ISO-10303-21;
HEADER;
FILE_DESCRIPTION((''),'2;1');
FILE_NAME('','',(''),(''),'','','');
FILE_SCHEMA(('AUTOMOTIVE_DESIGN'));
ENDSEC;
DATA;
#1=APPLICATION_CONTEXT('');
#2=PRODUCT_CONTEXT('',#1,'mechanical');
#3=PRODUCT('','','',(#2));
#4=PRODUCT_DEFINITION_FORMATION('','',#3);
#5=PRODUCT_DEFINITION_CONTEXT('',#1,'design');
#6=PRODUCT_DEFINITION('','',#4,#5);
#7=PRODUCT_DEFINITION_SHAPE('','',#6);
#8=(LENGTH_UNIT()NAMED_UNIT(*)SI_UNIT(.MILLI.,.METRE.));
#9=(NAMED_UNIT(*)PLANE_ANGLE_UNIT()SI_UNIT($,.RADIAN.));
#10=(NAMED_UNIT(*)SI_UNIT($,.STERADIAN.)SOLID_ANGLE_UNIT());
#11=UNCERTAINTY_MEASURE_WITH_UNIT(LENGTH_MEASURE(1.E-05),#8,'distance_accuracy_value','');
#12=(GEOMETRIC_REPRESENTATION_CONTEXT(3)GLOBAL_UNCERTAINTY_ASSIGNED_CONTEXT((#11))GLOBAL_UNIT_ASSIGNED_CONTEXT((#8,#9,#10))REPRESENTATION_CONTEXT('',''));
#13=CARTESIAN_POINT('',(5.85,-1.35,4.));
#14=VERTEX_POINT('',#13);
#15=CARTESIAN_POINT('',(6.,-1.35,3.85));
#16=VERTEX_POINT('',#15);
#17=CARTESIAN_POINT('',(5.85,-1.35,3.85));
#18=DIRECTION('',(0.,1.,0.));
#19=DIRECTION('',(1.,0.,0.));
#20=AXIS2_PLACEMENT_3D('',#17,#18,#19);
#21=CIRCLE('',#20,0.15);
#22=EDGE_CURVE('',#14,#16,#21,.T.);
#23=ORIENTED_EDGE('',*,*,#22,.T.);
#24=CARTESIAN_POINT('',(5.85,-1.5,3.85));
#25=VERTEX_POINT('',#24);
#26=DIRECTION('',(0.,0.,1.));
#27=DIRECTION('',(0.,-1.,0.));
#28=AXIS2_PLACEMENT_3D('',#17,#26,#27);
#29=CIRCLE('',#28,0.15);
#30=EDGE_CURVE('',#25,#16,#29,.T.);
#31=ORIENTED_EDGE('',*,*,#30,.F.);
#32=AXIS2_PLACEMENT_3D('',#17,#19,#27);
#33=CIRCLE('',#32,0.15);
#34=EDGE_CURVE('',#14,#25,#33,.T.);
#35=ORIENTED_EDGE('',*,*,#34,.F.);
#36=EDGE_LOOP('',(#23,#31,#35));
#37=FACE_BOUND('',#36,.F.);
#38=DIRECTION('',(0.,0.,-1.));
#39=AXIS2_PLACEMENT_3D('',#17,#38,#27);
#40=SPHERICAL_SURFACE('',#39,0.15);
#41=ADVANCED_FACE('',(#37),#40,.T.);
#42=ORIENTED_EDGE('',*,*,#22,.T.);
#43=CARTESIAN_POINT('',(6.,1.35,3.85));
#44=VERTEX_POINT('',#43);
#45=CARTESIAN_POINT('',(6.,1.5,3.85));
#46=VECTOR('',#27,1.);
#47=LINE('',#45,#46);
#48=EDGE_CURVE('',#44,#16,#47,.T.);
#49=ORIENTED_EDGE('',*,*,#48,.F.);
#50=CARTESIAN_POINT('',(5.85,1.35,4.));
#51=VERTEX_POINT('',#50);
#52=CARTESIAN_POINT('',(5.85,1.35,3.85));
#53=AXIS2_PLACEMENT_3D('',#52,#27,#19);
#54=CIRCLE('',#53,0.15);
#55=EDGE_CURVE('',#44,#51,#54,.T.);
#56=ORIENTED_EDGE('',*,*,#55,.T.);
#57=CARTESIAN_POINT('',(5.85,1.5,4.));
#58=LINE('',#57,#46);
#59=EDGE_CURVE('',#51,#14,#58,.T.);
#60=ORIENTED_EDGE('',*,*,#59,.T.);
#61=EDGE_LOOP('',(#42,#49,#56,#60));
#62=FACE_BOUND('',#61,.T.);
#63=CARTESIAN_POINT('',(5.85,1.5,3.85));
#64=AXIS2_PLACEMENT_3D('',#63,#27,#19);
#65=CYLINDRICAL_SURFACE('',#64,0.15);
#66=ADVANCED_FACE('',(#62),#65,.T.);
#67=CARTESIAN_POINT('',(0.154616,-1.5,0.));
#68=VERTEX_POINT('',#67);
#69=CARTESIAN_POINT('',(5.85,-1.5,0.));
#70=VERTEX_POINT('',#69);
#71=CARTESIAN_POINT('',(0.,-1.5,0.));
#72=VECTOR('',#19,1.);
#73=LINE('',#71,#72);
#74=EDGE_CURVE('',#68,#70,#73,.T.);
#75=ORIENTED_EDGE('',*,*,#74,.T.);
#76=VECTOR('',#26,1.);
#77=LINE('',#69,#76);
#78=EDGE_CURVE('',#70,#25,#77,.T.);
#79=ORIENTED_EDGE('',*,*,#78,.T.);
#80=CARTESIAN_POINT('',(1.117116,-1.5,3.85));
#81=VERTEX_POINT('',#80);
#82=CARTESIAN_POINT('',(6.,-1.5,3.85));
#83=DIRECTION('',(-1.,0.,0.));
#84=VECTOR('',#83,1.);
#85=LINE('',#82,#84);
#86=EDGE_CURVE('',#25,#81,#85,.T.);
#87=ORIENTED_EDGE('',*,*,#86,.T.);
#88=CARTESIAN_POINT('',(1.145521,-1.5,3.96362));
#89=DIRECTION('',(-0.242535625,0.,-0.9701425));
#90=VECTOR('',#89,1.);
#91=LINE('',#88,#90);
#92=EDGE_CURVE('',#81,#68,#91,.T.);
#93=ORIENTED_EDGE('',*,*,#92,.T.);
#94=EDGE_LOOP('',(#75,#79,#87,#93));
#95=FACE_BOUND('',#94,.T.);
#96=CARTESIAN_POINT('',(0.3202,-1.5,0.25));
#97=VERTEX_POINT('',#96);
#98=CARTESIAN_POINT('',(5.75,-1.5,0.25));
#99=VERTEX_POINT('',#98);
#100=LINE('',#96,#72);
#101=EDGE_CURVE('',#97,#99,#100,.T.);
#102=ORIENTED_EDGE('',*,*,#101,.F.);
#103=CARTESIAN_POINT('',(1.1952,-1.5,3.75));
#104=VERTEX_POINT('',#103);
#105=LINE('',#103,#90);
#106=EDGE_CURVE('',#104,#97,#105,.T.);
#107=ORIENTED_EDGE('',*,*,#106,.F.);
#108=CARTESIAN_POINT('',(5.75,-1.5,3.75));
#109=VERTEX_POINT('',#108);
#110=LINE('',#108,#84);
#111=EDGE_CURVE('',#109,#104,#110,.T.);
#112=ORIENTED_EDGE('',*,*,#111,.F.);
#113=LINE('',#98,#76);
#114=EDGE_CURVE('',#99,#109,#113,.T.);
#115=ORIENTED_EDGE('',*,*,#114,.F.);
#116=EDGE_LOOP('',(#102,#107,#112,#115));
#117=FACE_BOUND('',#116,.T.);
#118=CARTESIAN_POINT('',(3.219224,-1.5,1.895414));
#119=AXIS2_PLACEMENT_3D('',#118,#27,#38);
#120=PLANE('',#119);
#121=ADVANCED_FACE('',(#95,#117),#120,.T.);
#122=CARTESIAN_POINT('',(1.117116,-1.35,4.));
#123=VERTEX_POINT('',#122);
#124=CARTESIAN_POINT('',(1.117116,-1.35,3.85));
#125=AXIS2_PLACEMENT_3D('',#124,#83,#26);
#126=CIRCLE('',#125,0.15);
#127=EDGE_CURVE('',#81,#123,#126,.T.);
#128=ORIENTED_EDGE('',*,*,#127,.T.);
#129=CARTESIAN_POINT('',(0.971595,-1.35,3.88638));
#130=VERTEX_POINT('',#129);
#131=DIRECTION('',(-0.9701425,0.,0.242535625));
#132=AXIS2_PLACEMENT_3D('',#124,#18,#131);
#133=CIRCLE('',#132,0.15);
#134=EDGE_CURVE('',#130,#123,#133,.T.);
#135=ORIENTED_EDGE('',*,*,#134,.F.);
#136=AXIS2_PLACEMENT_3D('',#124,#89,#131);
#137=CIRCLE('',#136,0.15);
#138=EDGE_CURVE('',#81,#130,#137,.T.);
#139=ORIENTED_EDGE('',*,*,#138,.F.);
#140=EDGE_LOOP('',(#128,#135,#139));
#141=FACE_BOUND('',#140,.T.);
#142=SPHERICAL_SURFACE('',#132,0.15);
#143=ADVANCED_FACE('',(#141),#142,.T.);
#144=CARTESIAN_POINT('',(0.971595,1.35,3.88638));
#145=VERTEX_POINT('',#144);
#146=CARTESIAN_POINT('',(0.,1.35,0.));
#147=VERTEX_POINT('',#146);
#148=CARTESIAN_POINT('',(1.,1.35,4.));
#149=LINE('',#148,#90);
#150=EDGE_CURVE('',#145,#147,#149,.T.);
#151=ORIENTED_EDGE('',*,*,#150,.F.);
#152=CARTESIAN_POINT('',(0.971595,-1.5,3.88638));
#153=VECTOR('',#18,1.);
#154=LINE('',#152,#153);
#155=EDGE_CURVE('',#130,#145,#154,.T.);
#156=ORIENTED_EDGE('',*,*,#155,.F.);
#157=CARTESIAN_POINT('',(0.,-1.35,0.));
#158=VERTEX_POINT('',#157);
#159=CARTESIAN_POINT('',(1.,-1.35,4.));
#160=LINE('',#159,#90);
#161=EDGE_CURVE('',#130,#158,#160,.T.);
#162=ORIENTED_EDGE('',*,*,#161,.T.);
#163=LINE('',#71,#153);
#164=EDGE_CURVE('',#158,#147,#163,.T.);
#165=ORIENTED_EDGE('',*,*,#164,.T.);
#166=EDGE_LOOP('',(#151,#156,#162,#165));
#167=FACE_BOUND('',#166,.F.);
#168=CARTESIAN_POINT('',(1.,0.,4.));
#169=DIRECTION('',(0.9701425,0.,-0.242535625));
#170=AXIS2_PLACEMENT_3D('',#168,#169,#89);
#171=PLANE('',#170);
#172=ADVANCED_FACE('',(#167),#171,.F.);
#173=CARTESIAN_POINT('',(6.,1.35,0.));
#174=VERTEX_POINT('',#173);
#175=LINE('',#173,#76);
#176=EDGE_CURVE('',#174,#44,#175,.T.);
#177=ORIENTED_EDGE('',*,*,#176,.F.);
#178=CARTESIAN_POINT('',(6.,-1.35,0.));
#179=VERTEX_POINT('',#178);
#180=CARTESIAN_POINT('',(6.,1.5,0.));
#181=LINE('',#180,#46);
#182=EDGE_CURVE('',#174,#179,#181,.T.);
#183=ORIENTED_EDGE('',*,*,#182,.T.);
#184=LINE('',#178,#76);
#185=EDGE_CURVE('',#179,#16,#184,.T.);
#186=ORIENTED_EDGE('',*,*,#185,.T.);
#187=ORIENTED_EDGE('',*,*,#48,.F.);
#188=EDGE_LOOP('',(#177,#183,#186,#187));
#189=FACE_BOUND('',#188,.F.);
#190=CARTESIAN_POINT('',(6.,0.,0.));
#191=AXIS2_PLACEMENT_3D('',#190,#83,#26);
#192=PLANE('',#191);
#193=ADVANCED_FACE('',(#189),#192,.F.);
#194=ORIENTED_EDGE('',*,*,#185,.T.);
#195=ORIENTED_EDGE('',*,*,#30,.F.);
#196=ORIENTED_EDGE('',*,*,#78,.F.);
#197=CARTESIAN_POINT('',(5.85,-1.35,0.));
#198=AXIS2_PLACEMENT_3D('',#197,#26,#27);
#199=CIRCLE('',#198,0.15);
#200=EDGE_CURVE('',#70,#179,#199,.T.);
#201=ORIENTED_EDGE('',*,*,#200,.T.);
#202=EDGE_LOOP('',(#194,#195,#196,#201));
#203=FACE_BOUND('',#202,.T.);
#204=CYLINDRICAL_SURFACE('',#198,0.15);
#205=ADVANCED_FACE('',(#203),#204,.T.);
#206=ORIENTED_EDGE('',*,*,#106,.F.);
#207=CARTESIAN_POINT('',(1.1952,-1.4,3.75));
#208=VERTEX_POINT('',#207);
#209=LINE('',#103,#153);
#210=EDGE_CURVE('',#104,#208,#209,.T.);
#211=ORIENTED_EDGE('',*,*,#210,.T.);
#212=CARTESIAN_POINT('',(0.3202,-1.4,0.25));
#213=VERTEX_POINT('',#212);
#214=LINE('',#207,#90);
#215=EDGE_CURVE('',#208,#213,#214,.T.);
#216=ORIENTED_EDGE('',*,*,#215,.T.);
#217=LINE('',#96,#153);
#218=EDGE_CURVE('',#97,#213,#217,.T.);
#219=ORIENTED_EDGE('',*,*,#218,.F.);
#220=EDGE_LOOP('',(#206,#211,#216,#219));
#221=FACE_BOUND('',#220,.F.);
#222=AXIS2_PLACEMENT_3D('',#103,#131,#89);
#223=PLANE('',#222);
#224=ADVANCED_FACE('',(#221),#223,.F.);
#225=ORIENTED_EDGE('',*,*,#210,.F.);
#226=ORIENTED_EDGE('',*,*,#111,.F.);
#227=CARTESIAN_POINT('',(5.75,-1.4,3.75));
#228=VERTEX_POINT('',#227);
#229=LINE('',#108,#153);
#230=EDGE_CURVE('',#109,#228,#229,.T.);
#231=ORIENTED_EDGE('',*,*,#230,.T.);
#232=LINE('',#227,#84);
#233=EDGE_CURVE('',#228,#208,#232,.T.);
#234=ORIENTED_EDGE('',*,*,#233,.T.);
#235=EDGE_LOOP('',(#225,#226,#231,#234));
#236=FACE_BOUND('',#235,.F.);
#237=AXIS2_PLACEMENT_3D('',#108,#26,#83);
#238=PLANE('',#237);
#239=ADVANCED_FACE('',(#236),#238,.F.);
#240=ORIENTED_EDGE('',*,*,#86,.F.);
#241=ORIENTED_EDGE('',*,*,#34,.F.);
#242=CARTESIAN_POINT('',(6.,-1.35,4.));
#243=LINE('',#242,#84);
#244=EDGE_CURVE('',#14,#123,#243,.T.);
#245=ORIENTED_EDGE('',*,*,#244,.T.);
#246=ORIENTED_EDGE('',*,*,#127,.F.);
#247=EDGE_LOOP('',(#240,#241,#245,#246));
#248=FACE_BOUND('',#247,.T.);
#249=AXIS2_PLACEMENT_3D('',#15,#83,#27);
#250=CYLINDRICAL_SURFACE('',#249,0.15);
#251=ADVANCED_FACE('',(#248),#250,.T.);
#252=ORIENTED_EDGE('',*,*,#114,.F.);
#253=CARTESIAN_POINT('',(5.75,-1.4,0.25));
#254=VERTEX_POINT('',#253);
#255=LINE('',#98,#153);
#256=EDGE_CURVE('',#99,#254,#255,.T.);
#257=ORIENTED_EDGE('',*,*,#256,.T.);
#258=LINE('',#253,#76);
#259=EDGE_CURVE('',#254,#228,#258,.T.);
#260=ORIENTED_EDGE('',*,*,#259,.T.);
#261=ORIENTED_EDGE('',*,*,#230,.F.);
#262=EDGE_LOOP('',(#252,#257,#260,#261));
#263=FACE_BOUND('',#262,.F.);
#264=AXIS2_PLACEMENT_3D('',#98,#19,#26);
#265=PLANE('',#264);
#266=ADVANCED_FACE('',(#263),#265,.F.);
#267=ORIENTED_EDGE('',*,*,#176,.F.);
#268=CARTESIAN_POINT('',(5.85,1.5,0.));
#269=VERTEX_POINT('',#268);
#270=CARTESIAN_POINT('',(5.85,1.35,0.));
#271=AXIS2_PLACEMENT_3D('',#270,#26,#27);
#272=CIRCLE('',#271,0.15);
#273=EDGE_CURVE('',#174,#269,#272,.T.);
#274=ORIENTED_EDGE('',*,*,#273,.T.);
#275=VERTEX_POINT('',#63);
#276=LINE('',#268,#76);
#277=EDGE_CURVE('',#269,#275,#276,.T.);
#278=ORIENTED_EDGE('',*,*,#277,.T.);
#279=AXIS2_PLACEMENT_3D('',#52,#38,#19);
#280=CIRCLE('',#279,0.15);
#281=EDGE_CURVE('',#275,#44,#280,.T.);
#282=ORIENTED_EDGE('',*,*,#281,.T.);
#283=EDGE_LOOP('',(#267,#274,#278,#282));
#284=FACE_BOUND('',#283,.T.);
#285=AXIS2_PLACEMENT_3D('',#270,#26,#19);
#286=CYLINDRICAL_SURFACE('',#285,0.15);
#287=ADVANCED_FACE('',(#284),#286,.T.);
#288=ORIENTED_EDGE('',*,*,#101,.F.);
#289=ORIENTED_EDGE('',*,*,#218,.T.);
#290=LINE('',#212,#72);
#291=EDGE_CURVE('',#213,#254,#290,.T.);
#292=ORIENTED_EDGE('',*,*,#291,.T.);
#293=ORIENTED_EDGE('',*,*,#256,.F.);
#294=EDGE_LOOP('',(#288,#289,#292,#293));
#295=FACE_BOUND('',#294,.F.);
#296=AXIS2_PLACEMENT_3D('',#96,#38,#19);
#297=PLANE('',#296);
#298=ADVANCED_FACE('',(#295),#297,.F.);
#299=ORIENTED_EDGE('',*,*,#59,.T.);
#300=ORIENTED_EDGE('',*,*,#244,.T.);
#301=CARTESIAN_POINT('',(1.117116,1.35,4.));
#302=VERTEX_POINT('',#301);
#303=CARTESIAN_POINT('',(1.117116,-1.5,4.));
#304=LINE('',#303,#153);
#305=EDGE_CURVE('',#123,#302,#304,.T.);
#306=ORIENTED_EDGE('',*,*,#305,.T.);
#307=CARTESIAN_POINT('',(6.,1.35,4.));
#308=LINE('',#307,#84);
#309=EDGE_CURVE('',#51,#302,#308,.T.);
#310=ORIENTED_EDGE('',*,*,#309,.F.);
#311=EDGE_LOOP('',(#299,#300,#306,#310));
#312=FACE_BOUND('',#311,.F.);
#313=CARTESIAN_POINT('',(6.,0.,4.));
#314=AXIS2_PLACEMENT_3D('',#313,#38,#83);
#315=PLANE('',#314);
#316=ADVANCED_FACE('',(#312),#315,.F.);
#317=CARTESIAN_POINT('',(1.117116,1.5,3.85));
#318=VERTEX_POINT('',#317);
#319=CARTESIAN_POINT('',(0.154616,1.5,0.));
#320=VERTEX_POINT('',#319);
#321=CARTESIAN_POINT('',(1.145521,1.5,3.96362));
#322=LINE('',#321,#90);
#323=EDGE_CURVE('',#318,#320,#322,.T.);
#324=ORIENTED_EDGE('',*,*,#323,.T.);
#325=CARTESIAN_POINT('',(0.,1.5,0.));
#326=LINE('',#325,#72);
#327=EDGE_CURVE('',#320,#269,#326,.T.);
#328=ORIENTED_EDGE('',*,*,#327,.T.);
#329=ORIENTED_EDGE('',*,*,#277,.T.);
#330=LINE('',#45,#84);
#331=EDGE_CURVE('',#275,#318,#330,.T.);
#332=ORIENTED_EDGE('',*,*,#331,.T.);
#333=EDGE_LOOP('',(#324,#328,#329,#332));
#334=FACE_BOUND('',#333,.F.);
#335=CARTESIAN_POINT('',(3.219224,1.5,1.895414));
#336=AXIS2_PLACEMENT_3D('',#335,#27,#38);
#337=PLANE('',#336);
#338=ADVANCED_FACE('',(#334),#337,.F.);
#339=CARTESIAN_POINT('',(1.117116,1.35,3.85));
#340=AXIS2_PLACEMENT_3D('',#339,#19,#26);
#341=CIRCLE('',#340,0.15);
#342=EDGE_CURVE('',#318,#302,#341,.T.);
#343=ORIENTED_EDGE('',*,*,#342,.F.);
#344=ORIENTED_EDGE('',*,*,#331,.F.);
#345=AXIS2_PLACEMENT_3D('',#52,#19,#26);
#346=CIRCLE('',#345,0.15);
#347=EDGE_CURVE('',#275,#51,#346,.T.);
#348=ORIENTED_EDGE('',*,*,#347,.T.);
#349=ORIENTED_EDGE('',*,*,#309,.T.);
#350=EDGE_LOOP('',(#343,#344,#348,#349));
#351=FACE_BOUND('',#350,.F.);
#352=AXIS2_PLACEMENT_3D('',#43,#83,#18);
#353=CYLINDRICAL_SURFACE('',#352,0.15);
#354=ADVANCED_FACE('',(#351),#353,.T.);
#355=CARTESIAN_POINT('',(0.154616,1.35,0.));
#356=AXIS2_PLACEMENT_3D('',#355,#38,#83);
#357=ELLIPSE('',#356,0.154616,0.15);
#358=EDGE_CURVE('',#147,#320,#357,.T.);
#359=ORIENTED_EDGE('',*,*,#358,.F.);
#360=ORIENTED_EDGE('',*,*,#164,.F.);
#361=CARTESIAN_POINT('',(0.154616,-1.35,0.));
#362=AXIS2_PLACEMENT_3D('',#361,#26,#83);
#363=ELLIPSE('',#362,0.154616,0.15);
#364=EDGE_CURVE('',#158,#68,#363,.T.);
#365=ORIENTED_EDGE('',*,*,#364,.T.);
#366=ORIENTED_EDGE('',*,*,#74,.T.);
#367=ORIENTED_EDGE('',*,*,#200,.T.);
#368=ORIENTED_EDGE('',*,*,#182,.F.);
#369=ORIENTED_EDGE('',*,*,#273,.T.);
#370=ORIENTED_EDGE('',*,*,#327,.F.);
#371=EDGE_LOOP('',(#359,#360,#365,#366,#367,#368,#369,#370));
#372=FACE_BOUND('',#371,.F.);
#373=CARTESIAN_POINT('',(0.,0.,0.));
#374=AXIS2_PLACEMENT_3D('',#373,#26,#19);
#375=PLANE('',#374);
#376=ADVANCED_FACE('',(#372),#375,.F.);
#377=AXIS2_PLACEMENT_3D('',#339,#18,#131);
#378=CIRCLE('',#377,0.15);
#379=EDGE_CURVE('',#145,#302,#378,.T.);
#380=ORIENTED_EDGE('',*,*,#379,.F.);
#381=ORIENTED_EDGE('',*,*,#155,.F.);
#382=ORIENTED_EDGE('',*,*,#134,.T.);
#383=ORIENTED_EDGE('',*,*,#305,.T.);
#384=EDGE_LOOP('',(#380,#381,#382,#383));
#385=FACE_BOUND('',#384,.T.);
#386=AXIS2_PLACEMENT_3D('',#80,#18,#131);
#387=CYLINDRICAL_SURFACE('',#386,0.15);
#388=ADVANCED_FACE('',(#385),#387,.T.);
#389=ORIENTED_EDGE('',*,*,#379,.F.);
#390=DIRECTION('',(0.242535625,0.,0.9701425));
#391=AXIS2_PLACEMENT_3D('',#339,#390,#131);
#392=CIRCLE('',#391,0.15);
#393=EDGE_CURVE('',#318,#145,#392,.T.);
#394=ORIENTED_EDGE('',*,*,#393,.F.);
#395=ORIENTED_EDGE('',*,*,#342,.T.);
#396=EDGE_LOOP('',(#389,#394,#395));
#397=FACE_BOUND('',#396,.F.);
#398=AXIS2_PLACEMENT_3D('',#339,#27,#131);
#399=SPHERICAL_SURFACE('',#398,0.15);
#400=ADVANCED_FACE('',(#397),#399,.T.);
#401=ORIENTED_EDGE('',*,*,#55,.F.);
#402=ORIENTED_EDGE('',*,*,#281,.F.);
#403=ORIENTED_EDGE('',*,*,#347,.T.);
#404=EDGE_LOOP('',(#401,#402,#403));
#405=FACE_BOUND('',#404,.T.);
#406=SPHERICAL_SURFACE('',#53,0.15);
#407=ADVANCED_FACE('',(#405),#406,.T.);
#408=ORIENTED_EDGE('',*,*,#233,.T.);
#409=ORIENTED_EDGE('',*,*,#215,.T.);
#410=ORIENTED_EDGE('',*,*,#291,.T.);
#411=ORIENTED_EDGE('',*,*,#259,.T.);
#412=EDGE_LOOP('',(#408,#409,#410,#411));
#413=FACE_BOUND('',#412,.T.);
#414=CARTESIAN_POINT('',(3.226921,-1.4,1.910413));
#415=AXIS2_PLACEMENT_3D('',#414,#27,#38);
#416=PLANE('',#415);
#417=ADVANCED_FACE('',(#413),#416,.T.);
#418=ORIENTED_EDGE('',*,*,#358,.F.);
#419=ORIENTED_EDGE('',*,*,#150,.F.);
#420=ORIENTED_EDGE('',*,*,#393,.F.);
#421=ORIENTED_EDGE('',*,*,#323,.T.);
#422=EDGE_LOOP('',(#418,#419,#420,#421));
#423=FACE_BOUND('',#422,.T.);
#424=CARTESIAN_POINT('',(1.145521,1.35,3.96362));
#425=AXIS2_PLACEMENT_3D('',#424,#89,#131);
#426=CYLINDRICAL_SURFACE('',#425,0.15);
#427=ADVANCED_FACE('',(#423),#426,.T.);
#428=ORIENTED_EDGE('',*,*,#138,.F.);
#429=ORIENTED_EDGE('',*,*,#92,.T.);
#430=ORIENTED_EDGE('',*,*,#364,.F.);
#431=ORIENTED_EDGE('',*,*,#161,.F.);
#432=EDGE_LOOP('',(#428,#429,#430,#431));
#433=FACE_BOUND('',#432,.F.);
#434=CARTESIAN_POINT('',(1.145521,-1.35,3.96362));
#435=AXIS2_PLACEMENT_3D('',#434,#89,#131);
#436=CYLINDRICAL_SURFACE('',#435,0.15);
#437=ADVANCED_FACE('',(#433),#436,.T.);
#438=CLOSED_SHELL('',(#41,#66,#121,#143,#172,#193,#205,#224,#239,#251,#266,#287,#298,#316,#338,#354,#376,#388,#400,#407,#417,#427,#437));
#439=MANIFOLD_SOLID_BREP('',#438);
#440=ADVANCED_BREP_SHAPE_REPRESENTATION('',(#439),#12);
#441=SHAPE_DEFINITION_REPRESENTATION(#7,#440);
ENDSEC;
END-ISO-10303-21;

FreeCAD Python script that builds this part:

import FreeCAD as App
import Part
import Sketcher


def edges_at(feature, points):
    """Names of the edges that pass closest to the given points."""
    edges = feature.Shape.Edges
    near = lambda p: min(range(len(edges)), key=lambda i: edges[i].distToShape(Part.Vertex(*p))[0])
    return sorted({f"Edge{near(p) + 1}" for p in points})


def add_polygon(sketch, points):
    """Adds a closed chain of lines whose ends are joined by coincident constraints."""
    first, n = sketch.GeometryCount, len(points)
    for a, b in zip(points, points[1:] + points[:1]):
        sketch.addGeometry(Part.LineSegment(App.Vector(*a, 0), App.Vector(*b, 0)), False)
    for i in range(n):
        sketch.addConstraint(Sketcher.Constraint("Coincident", first + i, 2, first + (i + 1) % n, 1))

doc = App.newDocument("Part")
body = doc.addObject("PartDesign::Body", "Body")

# Sketch on XZ plane
sketch1 = body.newObject("Sketcher::SketchObject", "Sketch")
sketch1.AttachmentSupport = (doc.getObject("XZ_Plane"), [""])
sketch1.MapMode = "FlatFace"
add_polygon(sketch1, [(1, 4), (0, 0), (6, 0), (6, 4)])  # lines 0-3
sketch1.addConstraint([
    Sketcher.Constraint("Horizontal", 1),
    Sketcher.Constraint("Vertical", 2),
    Sketcher.Constraint("Horizontal", 3),
    Sketcher.Constraint("Coincident", 0, 2, -1, 1),
    Sketcher.Constraint("DistanceX", 1, 1, 1, 2, 6.0),
    Sketcher.Constraint("DistanceX", 3, 2, 3, 1, 5.0),
    Sketcher.Constraint("DistanceY", 2, 1, 2, 2, 4.0),
])
pad1 = body.newObject("PartDesign::Pad", "Pad")
pad1.Profile = sketch1
pad1.Length = 3
pad1.Midplane = True

# Sketch on XZ plane
sketch2 = body.newObject("Sketcher::SketchObject", "Sketch001")
sketch2.AttachmentSupport = (doc.getObject("XZ_Plane"), [""])
sketch2.MapMode = "FlatFace"
sketch2.AttachmentOffset = App.Placement(App.Vector(0, 0, 1.5), App.Rotation())
add_polygon(sketch2, [(5.8, 3.8), (1.2, 3.8), (0.3, 0.2), (5.8, 0.2)])  # lines 0-3
sketch2.addConstraint([
    Sketcher.Constraint("Horizontal", 0),
    Sketcher.Constraint("Horizontal", 2),
    Sketcher.Constraint("Vertical", 3),
    Sketcher.Constraint("DistanceY", 3, 1, 3, 2, 3.5),
    Sketcher.Constraint("DistanceY", -1, 1, 0, 2, 3.75),
    Sketcher.Constraint("DistanceX", -1, 1, 2, 2, 5.75),
    Sketcher.Constraint("DistanceX", 0, 2, 0, 1, 4.5548),
    Sketcher.Constraint("DistanceX", 2, 1, 2, 2, 5.4298),
])
pocket1 = body.newObject("PartDesign::Pocket", "Pocket")
pocket1.Profile = sketch2
pocket1.Length = 0.1
doc.recompute()

fillet = body.newObject("PartDesign::Fillet", "Fillet")
fillet.Base = (pocket1, edges_at(pocket1, [
    (6, -1.5, 2),
    (3.5, -1.5, 4),
    (6, 0, 4),
    (6, 1.5, 2),
    (3.5, 1.5, 4),
    (1, 0, 4),
    (0.5, 1.5, 2),
    (0.5, -1.5, 2),
]))
fillet.Radius = 0.15

doc.recompute()
